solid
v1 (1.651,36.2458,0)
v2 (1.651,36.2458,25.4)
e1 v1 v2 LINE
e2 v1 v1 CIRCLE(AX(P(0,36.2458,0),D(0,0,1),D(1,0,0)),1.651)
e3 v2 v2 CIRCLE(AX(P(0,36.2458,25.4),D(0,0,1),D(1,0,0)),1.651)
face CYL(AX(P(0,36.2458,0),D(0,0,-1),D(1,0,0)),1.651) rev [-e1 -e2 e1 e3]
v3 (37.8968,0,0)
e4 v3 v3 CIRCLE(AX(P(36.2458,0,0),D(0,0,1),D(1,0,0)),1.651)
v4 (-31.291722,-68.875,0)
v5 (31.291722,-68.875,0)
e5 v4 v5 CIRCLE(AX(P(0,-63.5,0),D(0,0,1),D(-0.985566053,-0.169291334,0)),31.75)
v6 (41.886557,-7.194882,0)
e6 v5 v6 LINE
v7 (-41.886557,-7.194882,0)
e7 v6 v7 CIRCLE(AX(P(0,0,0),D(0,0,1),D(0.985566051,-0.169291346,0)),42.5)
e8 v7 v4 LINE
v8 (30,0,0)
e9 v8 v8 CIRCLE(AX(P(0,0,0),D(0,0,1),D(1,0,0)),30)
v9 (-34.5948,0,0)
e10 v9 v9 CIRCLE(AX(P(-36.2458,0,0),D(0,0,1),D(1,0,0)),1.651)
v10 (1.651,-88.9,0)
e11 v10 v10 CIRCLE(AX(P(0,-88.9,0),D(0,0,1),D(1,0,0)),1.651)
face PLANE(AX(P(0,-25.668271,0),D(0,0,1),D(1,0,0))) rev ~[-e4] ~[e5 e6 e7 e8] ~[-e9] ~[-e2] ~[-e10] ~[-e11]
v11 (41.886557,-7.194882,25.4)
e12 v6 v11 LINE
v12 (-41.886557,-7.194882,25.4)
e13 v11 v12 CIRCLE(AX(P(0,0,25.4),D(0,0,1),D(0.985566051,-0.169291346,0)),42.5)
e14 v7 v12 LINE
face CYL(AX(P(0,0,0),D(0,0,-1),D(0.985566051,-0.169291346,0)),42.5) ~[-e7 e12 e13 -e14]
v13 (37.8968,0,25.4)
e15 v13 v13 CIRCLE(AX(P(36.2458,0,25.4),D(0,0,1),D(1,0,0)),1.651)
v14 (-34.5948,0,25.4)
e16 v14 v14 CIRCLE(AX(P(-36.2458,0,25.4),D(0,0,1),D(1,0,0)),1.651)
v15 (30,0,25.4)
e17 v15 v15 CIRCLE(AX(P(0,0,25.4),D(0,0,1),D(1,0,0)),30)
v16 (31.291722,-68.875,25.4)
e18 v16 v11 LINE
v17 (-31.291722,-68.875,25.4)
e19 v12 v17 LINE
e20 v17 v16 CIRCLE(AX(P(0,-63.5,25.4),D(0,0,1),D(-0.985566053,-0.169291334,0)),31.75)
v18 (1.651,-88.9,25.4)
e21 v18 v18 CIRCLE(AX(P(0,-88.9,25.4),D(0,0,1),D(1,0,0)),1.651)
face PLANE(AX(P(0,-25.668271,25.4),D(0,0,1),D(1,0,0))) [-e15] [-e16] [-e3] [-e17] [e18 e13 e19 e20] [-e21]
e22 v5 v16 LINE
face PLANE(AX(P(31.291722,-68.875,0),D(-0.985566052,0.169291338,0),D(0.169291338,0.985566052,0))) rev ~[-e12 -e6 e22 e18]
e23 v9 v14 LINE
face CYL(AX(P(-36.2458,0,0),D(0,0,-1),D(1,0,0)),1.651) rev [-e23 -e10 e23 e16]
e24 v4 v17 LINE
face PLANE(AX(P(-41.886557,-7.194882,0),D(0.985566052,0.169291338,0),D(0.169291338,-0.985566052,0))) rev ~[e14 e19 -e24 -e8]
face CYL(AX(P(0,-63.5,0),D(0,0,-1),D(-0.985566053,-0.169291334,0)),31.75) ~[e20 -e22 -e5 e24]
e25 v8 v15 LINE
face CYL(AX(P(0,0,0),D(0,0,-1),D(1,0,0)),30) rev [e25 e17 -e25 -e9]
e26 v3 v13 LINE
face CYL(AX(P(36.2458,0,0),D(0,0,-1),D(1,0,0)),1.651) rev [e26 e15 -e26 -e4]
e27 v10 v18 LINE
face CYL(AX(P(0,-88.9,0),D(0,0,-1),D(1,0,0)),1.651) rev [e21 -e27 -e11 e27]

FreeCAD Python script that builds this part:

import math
import FreeCAD as App
import Part
import Sketcher
Q = App.Units.Quantity

doc = App.newDocument("Part")
body = doc.addObject("PartDesign::Body", "Body")

# Sketch on XY plane
sketch1 = doc.addObject("Sketcher::SketchObject", "Sketch")
body.addObject(sketch1)
sketch1.AttachmentSupport = (doc.XY_Plane, [""])
sketch1.MapMode = "FlatFace"
sketch1.addGeometry(Part.ArcOfCircle(Part.Circle(App.Vector(0, -63.5, 0), App.Vector(0, 0, 1), 31.75), math.radians(-170.253382), math.radians(-9.746618)), False)
sketch1.addGeometry(Part.LineSegment(App.Vector(31.291722, -68.875, 0), App.Vector(41.886557, -7.194882, 0)), False)
sketch1.addGeometry(Part.ArcOfCircle(Part.Circle(App.Vector(0, 0, 0), App.Vector(0, 0, 1), 42.5), math.radians(-9.746619), math.radians(189.746619)), False)
sketch1.addGeometry(Part.LineSegment(App.Vector(-41.886557, -7.194882, 0), App.Vector(-31.291722, -68.875, 0)), False)
sketch1.addGeometry(Part.Circle(App.Vector(0, -88.9, 0), App.Vector(0, 0, 1), 1.651), False)
sketch1.addGeometry(Part.Circle(App.Vector(-36.2458, 0, 0), App.Vector(0, 0, 1), 1.651), False)
sketch1.addGeometry(Part.Circle(App.Vector(0, 0, 0), App.Vector(0, 0, 1), 30), False)
sketch1.addGeometry(Part.Circle(App.Vector(36.2458, 0, 0), App.Vector(0, 0, 1), 1.651), False)
sketch1.addGeometry(Part.Circle(App.Vector(0, 36.2458, 0), App.Vector(0, 0, 1), 1.651), False)
sketch1.addConstraint(Sketcher.Constraint("Tangent", 0, 2, 1, 1))
sketch1.addConstraint(Sketcher.Constraint("Tangent", 1, 2, 2, 1))
sketch1.addConstraint(Sketcher.Constraint("Tangent", 2, 2, 3, 1))
sketch1.addConstraint(Sketcher.Constraint("Tangent", 3, 2, 0, 1))
sketch1.addConstraint(Sketcher.Constraint("Coincident", 2, 3, -1, 1))
sketch1.addConstraint(Sketcher.Constraint("Coincident", 6, 3, -1, 1))
sketch1.addConstraint(Sketcher.Constraint("Equal", 4, 5))
sketch1.addConstraint(Sketcher.Constraint("Equal", 5, 7))
sketch1.addConstraint(Sketcher.Constraint("Equal", 7, 8))
sketch1.addConstraint(Sketcher.Constraint("Symmetric", 5, 3, 7, 3, -1, 1))
sketch1.addConstraint(Sketcher.Constraint("PointOnObject", 0, 3, -2))
sketch1.addConstraint(Sketcher.Constraint("PointOnObject", 4, 3, -2))
sketch1.addConstraint(Sketcher.Constraint("PointOnObject", 5, 3, -1))
sketch1.addConstraint(Sketcher.Constraint("PointOnObject", 8, 3, -2))
sketch1.addConstraint(Sketcher.Constraint("Diameter", 4, Q("0.13 in")))
sketch1.addConstraint(Sketcher.Constraint("Radius", 0, Q("1.25 in")))
sketch1.addConstraint(Sketcher.Constraint("DistanceY", 4, 3, 0, 3, Q("1 in")))
sketch1.addConstraint(Sketcher.Constraint("DistanceY", 0, 3, -1, 1, Q("2.5 in")))
sketch1.addConstraint(Sketcher.Constraint("Diameter", 6, Q("60 mm")))
sketch1.addConstraint(Sketcher.Constraint("Radius", 2, Q("42.5 mm")))
sketch1.addConstraint(Sketcher.Constraint("DistanceX", 5, 3, -1, 1, Q("1.427 in")))
sketch1.addConstraint(Sketcher.Constraint("DistanceY", -1, 1, 8, 3, Q("1.427 in")))
pad1 = doc.addObject("PartDesign::Pad", "Pad")
body.addObject(pad1)
pad1.Profile = sketch1
pad1.Length = Q("1 in")

doc.recompute()
